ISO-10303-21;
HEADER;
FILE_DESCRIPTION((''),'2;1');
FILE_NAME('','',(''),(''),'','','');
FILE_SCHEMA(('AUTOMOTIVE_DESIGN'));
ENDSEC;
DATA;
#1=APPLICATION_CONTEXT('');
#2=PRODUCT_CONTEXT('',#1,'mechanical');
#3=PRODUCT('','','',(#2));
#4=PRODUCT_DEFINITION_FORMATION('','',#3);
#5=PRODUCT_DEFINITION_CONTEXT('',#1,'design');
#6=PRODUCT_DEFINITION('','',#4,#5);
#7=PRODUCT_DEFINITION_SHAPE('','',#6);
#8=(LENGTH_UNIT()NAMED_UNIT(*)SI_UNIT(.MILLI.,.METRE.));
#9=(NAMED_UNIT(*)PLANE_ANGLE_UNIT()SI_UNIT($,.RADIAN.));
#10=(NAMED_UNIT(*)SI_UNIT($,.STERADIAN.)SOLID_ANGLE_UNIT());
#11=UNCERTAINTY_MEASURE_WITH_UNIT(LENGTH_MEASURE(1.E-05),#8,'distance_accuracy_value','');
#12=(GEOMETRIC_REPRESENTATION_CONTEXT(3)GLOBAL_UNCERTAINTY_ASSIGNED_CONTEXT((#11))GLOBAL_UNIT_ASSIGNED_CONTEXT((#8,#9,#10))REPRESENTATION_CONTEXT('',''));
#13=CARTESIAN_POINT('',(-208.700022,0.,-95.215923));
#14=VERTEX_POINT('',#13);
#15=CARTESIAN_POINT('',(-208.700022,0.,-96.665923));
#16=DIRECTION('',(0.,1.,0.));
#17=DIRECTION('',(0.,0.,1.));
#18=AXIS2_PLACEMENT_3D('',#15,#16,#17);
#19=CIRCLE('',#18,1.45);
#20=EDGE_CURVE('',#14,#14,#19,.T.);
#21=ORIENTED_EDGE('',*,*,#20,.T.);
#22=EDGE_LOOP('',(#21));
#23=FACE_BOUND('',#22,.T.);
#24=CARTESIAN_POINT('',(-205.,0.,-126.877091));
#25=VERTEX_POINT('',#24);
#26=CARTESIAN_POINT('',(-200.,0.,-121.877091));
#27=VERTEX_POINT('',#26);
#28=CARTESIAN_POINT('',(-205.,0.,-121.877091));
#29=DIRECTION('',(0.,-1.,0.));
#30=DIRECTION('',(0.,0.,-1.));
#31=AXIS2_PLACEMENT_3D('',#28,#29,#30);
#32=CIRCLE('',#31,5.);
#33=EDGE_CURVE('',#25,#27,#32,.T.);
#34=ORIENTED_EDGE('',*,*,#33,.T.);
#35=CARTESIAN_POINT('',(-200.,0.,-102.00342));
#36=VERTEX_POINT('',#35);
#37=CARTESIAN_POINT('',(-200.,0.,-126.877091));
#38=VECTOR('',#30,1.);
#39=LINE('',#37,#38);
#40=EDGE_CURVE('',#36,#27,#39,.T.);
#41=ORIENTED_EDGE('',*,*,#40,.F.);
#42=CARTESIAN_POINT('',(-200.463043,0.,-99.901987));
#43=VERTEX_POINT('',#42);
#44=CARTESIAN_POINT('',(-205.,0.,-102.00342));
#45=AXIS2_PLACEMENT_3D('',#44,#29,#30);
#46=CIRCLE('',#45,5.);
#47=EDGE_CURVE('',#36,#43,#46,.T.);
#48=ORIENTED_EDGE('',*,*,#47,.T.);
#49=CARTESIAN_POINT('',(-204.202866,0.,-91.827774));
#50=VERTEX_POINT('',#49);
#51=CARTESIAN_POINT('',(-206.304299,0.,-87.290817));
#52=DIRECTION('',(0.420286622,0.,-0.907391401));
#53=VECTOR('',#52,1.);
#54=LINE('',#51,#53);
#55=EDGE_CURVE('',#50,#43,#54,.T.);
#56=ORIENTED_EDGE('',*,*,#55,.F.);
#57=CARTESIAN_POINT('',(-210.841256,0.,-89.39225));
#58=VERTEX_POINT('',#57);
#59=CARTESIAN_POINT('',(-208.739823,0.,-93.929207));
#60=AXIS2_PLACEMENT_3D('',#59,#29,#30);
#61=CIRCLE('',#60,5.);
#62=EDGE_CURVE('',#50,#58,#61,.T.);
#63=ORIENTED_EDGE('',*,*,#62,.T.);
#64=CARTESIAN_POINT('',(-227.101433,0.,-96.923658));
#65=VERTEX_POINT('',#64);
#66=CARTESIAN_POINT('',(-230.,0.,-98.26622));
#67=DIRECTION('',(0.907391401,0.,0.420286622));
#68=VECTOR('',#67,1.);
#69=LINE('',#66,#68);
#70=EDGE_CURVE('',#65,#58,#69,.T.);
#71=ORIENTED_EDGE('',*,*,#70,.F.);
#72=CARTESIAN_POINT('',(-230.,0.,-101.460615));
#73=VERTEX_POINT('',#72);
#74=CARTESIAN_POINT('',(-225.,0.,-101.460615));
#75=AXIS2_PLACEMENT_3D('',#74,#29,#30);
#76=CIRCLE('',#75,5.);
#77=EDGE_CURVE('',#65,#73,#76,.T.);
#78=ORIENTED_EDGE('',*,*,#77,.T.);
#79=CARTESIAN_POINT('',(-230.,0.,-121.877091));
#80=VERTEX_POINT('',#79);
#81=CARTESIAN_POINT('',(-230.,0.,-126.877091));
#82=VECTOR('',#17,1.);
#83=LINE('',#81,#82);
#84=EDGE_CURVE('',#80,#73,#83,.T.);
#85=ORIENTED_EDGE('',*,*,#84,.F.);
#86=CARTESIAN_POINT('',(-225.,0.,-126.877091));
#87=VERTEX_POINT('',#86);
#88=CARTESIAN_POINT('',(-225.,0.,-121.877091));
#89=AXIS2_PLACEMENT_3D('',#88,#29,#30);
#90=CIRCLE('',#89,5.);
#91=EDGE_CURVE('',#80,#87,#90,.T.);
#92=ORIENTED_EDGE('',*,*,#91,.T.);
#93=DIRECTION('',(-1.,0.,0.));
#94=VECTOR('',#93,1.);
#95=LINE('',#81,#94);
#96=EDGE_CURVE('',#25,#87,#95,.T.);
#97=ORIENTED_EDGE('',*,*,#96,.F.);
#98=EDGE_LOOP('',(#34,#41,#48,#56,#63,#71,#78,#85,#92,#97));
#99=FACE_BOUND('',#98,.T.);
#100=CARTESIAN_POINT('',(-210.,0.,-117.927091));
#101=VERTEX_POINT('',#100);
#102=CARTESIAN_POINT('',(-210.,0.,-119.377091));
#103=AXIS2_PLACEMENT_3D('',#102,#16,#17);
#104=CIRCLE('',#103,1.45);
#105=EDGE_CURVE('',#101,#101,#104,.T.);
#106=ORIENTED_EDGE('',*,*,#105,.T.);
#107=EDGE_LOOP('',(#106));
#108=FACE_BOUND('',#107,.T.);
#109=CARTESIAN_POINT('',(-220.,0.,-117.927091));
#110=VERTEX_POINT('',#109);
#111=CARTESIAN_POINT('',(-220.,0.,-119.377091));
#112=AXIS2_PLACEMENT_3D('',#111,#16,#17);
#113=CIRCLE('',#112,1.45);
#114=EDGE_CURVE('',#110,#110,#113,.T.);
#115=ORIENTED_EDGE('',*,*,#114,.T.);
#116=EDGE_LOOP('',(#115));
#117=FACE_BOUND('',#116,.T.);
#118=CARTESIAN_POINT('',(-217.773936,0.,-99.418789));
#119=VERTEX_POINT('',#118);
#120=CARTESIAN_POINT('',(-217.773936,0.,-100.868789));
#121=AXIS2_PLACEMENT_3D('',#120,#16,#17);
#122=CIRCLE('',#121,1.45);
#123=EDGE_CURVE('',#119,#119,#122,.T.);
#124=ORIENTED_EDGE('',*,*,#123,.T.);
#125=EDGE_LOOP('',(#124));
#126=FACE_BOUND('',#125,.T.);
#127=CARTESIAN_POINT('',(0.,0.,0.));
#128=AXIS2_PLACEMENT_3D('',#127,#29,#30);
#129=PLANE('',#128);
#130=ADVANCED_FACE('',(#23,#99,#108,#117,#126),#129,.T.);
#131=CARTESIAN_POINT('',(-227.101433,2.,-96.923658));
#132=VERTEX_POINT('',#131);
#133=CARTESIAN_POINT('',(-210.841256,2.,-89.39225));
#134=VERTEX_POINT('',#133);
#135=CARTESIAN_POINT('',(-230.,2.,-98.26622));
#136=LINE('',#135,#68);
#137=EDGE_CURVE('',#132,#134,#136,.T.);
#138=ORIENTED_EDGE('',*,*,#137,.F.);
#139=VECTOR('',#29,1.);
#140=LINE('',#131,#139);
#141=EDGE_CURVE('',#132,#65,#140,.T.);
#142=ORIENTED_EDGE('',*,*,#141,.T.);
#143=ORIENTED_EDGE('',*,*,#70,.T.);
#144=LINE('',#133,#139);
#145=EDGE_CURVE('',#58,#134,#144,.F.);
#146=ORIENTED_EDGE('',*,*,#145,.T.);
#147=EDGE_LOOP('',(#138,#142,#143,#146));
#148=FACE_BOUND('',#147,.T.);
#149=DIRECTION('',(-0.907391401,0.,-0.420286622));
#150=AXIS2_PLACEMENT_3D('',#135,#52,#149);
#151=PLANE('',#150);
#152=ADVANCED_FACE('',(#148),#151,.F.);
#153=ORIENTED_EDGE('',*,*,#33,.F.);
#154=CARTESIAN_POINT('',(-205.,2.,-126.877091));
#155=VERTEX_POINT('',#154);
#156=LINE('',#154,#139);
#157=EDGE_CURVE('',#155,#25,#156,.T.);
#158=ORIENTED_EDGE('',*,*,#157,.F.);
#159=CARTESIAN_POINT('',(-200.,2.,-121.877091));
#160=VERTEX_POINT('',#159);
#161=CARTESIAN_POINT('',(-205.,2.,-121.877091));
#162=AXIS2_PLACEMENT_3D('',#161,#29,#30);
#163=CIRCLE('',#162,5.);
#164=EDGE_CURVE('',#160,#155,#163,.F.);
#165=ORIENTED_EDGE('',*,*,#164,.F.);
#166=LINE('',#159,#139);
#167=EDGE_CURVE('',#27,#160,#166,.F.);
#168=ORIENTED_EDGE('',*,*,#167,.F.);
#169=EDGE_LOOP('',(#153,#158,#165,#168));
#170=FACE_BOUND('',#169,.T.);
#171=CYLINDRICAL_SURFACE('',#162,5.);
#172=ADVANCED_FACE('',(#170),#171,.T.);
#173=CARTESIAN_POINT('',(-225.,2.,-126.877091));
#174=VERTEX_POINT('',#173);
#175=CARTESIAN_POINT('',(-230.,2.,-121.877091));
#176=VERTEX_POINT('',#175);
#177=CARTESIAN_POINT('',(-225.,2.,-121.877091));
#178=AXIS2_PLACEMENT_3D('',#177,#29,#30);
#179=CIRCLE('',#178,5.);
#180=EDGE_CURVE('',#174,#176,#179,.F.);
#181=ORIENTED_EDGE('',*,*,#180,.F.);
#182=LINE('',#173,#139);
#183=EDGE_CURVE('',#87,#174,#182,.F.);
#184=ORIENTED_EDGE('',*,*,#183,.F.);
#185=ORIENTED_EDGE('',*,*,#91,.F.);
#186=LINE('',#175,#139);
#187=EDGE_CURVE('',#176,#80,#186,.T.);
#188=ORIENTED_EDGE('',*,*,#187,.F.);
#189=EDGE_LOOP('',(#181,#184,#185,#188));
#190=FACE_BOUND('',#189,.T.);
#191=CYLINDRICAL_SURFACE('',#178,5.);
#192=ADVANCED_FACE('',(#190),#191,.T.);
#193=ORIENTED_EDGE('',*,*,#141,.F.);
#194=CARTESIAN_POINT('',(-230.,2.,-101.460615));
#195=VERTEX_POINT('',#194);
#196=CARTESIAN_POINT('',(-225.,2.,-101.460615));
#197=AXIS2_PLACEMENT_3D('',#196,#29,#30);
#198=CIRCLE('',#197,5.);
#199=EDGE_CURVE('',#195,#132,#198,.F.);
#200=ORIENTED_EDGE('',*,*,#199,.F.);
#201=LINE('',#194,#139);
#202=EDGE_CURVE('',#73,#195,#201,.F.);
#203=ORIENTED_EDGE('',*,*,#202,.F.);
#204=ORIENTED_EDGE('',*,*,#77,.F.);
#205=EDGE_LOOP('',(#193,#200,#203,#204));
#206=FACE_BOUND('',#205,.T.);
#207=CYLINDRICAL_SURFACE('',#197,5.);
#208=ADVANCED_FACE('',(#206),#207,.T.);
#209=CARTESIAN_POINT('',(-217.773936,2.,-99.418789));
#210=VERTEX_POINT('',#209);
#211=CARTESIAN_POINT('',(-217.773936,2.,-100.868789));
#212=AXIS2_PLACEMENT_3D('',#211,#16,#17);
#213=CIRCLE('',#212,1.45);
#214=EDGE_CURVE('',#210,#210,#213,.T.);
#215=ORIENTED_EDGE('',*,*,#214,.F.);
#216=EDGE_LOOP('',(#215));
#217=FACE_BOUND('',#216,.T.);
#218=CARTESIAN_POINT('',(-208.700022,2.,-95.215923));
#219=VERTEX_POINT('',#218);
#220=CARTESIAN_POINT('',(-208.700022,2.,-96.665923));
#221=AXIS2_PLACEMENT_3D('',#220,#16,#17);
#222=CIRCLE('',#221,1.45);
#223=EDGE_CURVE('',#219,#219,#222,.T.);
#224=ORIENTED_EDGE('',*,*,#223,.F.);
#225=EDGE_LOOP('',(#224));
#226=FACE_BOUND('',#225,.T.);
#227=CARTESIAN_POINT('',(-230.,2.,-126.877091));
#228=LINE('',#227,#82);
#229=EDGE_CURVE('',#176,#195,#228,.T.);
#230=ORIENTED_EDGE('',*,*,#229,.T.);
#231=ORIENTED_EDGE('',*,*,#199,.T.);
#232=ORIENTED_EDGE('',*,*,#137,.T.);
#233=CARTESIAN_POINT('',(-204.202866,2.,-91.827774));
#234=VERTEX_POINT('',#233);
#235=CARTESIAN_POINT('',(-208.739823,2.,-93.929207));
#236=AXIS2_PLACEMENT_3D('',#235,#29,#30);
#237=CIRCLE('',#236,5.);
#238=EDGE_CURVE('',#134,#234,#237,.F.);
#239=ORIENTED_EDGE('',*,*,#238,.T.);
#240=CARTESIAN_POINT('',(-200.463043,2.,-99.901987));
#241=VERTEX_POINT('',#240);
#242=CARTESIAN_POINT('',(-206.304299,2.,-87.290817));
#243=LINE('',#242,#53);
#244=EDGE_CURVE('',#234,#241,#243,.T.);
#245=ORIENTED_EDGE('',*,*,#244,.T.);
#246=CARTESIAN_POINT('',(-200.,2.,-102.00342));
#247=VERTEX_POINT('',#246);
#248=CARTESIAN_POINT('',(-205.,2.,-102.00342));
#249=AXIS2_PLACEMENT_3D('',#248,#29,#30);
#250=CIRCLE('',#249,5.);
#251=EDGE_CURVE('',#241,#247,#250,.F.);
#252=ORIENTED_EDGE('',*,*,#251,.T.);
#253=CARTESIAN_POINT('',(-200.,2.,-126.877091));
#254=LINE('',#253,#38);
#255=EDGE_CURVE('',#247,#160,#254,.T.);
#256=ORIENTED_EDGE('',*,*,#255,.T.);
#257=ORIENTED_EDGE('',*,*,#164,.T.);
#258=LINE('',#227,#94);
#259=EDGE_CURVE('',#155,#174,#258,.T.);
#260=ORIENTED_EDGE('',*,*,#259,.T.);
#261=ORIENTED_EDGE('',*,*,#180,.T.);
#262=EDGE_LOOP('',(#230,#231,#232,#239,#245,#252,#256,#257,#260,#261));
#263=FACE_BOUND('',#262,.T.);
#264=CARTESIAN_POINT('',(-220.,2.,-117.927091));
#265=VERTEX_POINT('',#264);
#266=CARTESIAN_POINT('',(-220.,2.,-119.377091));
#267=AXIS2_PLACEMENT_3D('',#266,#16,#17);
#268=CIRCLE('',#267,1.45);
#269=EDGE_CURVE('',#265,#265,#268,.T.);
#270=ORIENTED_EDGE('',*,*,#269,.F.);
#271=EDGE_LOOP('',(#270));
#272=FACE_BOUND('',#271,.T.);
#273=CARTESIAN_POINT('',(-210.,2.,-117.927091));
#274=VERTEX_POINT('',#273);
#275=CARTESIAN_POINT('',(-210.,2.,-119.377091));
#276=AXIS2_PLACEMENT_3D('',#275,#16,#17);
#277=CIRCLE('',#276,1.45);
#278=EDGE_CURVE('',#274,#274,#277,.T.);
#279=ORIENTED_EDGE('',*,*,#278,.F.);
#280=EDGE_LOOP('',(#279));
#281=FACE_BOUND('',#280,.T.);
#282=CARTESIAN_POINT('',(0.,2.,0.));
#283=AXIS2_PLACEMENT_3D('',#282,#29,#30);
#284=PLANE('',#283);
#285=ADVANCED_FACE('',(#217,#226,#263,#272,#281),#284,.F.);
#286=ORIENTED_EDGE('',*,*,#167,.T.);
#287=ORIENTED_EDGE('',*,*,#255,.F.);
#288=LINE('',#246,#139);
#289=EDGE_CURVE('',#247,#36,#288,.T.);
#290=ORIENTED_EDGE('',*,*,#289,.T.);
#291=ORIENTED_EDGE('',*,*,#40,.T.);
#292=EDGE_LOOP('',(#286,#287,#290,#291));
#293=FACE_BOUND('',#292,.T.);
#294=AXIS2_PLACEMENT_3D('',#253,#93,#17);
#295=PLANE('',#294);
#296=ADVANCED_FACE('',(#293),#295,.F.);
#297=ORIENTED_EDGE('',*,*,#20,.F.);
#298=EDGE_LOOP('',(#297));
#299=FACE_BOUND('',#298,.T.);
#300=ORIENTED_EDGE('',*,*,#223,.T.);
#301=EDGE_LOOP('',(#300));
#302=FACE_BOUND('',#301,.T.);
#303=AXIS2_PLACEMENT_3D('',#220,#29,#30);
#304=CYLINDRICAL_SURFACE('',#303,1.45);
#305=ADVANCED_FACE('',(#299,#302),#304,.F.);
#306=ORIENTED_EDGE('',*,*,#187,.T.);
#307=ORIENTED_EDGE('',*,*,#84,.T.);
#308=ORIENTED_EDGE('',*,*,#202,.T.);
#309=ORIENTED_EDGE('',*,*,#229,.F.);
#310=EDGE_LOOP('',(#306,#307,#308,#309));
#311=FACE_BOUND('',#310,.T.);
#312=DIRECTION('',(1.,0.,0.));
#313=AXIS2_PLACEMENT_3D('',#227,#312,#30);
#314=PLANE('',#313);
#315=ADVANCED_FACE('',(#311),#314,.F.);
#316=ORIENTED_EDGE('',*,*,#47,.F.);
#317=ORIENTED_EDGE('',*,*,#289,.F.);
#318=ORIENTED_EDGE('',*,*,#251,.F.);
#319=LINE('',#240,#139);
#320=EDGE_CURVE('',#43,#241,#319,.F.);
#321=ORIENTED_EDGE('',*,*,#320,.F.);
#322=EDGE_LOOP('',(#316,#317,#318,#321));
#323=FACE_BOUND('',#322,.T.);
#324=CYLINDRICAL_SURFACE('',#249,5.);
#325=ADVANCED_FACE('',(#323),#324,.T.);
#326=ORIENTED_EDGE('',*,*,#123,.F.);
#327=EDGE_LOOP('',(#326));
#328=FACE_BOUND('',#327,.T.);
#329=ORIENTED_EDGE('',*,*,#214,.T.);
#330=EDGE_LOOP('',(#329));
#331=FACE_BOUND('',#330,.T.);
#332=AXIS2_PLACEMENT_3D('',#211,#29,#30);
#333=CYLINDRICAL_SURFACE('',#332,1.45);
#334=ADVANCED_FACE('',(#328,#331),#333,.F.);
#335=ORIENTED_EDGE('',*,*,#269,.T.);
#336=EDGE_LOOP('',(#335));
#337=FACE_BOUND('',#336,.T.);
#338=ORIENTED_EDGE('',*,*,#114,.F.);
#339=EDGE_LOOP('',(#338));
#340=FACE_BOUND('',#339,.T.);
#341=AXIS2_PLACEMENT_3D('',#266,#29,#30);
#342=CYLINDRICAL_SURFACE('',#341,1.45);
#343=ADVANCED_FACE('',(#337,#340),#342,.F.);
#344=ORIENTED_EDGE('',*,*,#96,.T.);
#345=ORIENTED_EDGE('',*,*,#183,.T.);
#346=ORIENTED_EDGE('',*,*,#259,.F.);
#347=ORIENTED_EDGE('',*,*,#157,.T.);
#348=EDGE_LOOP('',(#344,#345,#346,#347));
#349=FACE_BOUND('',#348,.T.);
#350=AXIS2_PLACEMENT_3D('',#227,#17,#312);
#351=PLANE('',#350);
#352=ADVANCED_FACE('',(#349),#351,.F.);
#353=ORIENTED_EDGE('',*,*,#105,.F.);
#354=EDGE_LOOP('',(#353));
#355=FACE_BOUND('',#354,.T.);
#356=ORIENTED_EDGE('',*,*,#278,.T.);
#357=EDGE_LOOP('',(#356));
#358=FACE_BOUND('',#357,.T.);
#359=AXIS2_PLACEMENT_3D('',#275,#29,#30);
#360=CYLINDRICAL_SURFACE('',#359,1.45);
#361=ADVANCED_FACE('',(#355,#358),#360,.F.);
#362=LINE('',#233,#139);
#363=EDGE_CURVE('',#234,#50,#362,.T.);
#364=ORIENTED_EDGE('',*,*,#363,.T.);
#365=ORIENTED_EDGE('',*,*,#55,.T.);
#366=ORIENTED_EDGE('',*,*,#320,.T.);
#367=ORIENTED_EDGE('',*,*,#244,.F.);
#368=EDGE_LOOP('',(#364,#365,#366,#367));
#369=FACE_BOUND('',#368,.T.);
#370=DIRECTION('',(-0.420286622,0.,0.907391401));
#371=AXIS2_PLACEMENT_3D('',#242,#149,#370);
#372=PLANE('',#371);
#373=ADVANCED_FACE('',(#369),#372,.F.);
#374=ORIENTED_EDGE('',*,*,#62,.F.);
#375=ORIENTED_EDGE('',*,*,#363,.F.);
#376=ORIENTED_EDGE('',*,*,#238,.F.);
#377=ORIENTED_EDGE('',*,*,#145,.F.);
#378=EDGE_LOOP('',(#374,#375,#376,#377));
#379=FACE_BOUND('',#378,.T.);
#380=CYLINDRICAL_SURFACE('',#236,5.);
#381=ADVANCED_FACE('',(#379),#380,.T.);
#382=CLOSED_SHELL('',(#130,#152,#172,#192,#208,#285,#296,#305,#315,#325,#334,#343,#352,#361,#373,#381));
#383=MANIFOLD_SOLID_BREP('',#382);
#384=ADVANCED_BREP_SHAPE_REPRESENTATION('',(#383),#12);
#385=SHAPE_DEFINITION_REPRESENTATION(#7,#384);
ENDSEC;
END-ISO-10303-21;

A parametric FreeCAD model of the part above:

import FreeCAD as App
import Part
import Sketcher
from FreeCAD import Vector
Q = App.Units.Quantity


def edges_at(feature, points):
    """Names of the edges that pass closest to the given points."""
    edges = feature.Shape.Edges
    near = lambda p: min(range(len(edges)), key=lambda i: edges[i].distToShape(Part.Vertex(*p))[0])
    return sorted({f"Edge{near(p) + 1}" for p in points})

doc = App.newDocument("Part")
params = doc.addObject("Spreadsheet::Sheet", "Params")
for row, (alias, value) in enumerate([
    ("sketch1_diameter", "2.9 mm"),
    ("sketch1_width", "30 mm"),
    ("sketch1_length", "15 mm"),
    ("pad1_length", "2 mm"),
    ("fillet_radius", "5 mm"),
], start=1):
    params.set(f"A{row}", alias)
    params.set(f"B{row}", "=" + value)
    params.setAlias(f"B{row}", alias)

body = doc.addObject("PartDesign::Body", "Body")

# Sketch on XZ plane
sketch1 = body.newObject("Sketcher::SketchObject", "Sketch")
sketch1.AttachmentSupport = (doc.getObject("XZ_Plane"), [""])
sketch1.MapMode = "FlatFace"
sketch1.addGeometry(Part.LineSegment(Vector(-230, -126.9, 0), Vector(-230, -98.3, 0)), False)
sketch1.addGeometry(Part.LineSegment(Vector(-230, -98.3, 0), Vector(-206.3, -87.3, 0)), False)
sketch1.addGeometry(Part.LineSegment(Vector(-206.3, -87.3, 0), Vector(-200, -100.9, 0)), False)
sketch1.addGeometry(Part.LineSegment(Vector(-200, -100.9, 0), Vector(-200, -126.9, 0)), False)
sketch1.addGeometry(Part.LineSegment(Vector(-200, -126.9, 0), Vector(-230, -126.9, 0)), False)
sketch1.addGeometry(Part.Circle(Vector(-217.8, -100.9, 0), Vector(0, 0, 1), 1.4), False)
sketch1.addGeometry(Part.Circle(Vector(-208.7, -96.7, 0), Vector(0, 0, 1), 1.4), False)
sketch1.addGeometry(Part.Circle(Vector(-220, -119.4, 0), Vector(0, 0, 1), 1.4), False)
sketch1.addGeometry(Part.Circle(Vector(-210, -119.4, 0), Vector(0, 0, 1), 1.4), False)
sketch1.addConstraint(Sketcher.Constraint("Coincident", 0, 2, 1, 1))
sketch1.addConstraint(Sketcher.Constraint("Coincident", 1, 2, 2, 1))
sketch1.addConstraint(Sketcher.Constraint("Coincident", 2, 2, 3, 1))
sketch1.addConstraint(Sketcher.Constraint("Coincident", 3, 2, 4, 1))
sketch1.addConstraint(Sketcher.Constraint("Coincident", 4, 2, 0, 1))
sketch1.addConstraint(Sketcher.Constraint("Vertical", 0))
sketch1.addConstraint(Sketcher.Constraint("Vertical", 3))
sketch1.addConstraint(Sketcher.Constraint("Horizontal", 4))
sketch1.addConstraint(Sketcher.Constraint("Equal", 5, 6))
sketch1.addConstraint(Sketcher.Constraint("Equal", 6, 7))
sketch1.addConstraint(Sketcher.Constraint("Equal", 7, 8))
sketch1.addConstraint(Sketcher.Constraint("Perpendicular", 1, 2))
sketch1.addConstraint(Sketcher.Constraint("Horizontal", 7, 3, 8, 3))
sketch1.addConstraint(Sketcher.Constraint("Diameter", 5, Q("2.9 mm")))
sketch1.addConstraint(Sketcher.Constraint("DistanceX", 4, 2, 4, 1, Q("30 mm")))
sketch1.addConstraint(Sketcher.Constraint("Distance", 2, Q("15 mm")))
sketch1.addConstraint(Sketcher.Constraint("DistanceX", 7, 3, -1, 1, Q("220 mm")))
sketch1.addConstraint(Sketcher.Constraint("DistanceX", 8, 3, -1, 1, Q("210 mm")))
sketch1.addConstraint(Sketcher.Constraint("DistanceX", 0, 2, -1, 1, Q("230 mm")))
sketch1.addConstraint(Sketcher.Constraint("DistanceY", 3, 2, 8, 3, Q("7.5 mm")))
sketch1.addConstraint(Sketcher.Constraint("DistanceY", 0, 1, 0, 2, Q("28.610871 mm")))
sketch1.addConstraint(Sketcher.Constraint("DistanceX", 1, 2, -1, 1, Q("206.304299 mm")))
sketch1.addConstraint(Sketcher.Constraint("DistanceY", 7, 3, 5, 3, Q("18.508302 mm")))
sketch1.addConstraint(Sketcher.Constraint("DistanceY", 5, 3, -1, 1, Q("100.868789 mm")))
sketch1.addConstraint(Sketcher.Constraint("DistanceX", 5, 3, -1, 1, Q("217.773936 mm")))
sketch1.addConstraint(Sketcher.Constraint("DistanceX", 6, 3, -1, 1, Q("208.700022 mm")))
sketch1.addConstraint(Sketcher.Constraint("DistanceY", 6, 3, -1, 1, Q("96.665923 mm")))
sketch1.setExpression("Constraints[13]", "Params.sketch1_diameter")
sketch1.setExpression("Constraints[14]", "Params.sketch1_width")
sketch1.setExpression("Constraints[15]", "Params.sketch1_length")
pad1 = body.newObject("PartDesign::Pad", "Pad")
pad1.Profile = sketch1
pad1.setExpression("Length", "Params.pad1_length")
pad1.Reversed = True
doc.recompute()

fillet = body.newObject("PartDesign::Fillet", "Fillet")
fillet.Base = (pad1, edges_at(pad1, [
    (-200, 1, -126.877),
    (-200, 1, -100.902),
    (-206.304, 1, -87.291),
    (-230, 1, -98.266),
    (-230, 1, -126.877),
]))
fillet.setExpression("Radius", "Params.fillet_radius")

doc.recompute()
